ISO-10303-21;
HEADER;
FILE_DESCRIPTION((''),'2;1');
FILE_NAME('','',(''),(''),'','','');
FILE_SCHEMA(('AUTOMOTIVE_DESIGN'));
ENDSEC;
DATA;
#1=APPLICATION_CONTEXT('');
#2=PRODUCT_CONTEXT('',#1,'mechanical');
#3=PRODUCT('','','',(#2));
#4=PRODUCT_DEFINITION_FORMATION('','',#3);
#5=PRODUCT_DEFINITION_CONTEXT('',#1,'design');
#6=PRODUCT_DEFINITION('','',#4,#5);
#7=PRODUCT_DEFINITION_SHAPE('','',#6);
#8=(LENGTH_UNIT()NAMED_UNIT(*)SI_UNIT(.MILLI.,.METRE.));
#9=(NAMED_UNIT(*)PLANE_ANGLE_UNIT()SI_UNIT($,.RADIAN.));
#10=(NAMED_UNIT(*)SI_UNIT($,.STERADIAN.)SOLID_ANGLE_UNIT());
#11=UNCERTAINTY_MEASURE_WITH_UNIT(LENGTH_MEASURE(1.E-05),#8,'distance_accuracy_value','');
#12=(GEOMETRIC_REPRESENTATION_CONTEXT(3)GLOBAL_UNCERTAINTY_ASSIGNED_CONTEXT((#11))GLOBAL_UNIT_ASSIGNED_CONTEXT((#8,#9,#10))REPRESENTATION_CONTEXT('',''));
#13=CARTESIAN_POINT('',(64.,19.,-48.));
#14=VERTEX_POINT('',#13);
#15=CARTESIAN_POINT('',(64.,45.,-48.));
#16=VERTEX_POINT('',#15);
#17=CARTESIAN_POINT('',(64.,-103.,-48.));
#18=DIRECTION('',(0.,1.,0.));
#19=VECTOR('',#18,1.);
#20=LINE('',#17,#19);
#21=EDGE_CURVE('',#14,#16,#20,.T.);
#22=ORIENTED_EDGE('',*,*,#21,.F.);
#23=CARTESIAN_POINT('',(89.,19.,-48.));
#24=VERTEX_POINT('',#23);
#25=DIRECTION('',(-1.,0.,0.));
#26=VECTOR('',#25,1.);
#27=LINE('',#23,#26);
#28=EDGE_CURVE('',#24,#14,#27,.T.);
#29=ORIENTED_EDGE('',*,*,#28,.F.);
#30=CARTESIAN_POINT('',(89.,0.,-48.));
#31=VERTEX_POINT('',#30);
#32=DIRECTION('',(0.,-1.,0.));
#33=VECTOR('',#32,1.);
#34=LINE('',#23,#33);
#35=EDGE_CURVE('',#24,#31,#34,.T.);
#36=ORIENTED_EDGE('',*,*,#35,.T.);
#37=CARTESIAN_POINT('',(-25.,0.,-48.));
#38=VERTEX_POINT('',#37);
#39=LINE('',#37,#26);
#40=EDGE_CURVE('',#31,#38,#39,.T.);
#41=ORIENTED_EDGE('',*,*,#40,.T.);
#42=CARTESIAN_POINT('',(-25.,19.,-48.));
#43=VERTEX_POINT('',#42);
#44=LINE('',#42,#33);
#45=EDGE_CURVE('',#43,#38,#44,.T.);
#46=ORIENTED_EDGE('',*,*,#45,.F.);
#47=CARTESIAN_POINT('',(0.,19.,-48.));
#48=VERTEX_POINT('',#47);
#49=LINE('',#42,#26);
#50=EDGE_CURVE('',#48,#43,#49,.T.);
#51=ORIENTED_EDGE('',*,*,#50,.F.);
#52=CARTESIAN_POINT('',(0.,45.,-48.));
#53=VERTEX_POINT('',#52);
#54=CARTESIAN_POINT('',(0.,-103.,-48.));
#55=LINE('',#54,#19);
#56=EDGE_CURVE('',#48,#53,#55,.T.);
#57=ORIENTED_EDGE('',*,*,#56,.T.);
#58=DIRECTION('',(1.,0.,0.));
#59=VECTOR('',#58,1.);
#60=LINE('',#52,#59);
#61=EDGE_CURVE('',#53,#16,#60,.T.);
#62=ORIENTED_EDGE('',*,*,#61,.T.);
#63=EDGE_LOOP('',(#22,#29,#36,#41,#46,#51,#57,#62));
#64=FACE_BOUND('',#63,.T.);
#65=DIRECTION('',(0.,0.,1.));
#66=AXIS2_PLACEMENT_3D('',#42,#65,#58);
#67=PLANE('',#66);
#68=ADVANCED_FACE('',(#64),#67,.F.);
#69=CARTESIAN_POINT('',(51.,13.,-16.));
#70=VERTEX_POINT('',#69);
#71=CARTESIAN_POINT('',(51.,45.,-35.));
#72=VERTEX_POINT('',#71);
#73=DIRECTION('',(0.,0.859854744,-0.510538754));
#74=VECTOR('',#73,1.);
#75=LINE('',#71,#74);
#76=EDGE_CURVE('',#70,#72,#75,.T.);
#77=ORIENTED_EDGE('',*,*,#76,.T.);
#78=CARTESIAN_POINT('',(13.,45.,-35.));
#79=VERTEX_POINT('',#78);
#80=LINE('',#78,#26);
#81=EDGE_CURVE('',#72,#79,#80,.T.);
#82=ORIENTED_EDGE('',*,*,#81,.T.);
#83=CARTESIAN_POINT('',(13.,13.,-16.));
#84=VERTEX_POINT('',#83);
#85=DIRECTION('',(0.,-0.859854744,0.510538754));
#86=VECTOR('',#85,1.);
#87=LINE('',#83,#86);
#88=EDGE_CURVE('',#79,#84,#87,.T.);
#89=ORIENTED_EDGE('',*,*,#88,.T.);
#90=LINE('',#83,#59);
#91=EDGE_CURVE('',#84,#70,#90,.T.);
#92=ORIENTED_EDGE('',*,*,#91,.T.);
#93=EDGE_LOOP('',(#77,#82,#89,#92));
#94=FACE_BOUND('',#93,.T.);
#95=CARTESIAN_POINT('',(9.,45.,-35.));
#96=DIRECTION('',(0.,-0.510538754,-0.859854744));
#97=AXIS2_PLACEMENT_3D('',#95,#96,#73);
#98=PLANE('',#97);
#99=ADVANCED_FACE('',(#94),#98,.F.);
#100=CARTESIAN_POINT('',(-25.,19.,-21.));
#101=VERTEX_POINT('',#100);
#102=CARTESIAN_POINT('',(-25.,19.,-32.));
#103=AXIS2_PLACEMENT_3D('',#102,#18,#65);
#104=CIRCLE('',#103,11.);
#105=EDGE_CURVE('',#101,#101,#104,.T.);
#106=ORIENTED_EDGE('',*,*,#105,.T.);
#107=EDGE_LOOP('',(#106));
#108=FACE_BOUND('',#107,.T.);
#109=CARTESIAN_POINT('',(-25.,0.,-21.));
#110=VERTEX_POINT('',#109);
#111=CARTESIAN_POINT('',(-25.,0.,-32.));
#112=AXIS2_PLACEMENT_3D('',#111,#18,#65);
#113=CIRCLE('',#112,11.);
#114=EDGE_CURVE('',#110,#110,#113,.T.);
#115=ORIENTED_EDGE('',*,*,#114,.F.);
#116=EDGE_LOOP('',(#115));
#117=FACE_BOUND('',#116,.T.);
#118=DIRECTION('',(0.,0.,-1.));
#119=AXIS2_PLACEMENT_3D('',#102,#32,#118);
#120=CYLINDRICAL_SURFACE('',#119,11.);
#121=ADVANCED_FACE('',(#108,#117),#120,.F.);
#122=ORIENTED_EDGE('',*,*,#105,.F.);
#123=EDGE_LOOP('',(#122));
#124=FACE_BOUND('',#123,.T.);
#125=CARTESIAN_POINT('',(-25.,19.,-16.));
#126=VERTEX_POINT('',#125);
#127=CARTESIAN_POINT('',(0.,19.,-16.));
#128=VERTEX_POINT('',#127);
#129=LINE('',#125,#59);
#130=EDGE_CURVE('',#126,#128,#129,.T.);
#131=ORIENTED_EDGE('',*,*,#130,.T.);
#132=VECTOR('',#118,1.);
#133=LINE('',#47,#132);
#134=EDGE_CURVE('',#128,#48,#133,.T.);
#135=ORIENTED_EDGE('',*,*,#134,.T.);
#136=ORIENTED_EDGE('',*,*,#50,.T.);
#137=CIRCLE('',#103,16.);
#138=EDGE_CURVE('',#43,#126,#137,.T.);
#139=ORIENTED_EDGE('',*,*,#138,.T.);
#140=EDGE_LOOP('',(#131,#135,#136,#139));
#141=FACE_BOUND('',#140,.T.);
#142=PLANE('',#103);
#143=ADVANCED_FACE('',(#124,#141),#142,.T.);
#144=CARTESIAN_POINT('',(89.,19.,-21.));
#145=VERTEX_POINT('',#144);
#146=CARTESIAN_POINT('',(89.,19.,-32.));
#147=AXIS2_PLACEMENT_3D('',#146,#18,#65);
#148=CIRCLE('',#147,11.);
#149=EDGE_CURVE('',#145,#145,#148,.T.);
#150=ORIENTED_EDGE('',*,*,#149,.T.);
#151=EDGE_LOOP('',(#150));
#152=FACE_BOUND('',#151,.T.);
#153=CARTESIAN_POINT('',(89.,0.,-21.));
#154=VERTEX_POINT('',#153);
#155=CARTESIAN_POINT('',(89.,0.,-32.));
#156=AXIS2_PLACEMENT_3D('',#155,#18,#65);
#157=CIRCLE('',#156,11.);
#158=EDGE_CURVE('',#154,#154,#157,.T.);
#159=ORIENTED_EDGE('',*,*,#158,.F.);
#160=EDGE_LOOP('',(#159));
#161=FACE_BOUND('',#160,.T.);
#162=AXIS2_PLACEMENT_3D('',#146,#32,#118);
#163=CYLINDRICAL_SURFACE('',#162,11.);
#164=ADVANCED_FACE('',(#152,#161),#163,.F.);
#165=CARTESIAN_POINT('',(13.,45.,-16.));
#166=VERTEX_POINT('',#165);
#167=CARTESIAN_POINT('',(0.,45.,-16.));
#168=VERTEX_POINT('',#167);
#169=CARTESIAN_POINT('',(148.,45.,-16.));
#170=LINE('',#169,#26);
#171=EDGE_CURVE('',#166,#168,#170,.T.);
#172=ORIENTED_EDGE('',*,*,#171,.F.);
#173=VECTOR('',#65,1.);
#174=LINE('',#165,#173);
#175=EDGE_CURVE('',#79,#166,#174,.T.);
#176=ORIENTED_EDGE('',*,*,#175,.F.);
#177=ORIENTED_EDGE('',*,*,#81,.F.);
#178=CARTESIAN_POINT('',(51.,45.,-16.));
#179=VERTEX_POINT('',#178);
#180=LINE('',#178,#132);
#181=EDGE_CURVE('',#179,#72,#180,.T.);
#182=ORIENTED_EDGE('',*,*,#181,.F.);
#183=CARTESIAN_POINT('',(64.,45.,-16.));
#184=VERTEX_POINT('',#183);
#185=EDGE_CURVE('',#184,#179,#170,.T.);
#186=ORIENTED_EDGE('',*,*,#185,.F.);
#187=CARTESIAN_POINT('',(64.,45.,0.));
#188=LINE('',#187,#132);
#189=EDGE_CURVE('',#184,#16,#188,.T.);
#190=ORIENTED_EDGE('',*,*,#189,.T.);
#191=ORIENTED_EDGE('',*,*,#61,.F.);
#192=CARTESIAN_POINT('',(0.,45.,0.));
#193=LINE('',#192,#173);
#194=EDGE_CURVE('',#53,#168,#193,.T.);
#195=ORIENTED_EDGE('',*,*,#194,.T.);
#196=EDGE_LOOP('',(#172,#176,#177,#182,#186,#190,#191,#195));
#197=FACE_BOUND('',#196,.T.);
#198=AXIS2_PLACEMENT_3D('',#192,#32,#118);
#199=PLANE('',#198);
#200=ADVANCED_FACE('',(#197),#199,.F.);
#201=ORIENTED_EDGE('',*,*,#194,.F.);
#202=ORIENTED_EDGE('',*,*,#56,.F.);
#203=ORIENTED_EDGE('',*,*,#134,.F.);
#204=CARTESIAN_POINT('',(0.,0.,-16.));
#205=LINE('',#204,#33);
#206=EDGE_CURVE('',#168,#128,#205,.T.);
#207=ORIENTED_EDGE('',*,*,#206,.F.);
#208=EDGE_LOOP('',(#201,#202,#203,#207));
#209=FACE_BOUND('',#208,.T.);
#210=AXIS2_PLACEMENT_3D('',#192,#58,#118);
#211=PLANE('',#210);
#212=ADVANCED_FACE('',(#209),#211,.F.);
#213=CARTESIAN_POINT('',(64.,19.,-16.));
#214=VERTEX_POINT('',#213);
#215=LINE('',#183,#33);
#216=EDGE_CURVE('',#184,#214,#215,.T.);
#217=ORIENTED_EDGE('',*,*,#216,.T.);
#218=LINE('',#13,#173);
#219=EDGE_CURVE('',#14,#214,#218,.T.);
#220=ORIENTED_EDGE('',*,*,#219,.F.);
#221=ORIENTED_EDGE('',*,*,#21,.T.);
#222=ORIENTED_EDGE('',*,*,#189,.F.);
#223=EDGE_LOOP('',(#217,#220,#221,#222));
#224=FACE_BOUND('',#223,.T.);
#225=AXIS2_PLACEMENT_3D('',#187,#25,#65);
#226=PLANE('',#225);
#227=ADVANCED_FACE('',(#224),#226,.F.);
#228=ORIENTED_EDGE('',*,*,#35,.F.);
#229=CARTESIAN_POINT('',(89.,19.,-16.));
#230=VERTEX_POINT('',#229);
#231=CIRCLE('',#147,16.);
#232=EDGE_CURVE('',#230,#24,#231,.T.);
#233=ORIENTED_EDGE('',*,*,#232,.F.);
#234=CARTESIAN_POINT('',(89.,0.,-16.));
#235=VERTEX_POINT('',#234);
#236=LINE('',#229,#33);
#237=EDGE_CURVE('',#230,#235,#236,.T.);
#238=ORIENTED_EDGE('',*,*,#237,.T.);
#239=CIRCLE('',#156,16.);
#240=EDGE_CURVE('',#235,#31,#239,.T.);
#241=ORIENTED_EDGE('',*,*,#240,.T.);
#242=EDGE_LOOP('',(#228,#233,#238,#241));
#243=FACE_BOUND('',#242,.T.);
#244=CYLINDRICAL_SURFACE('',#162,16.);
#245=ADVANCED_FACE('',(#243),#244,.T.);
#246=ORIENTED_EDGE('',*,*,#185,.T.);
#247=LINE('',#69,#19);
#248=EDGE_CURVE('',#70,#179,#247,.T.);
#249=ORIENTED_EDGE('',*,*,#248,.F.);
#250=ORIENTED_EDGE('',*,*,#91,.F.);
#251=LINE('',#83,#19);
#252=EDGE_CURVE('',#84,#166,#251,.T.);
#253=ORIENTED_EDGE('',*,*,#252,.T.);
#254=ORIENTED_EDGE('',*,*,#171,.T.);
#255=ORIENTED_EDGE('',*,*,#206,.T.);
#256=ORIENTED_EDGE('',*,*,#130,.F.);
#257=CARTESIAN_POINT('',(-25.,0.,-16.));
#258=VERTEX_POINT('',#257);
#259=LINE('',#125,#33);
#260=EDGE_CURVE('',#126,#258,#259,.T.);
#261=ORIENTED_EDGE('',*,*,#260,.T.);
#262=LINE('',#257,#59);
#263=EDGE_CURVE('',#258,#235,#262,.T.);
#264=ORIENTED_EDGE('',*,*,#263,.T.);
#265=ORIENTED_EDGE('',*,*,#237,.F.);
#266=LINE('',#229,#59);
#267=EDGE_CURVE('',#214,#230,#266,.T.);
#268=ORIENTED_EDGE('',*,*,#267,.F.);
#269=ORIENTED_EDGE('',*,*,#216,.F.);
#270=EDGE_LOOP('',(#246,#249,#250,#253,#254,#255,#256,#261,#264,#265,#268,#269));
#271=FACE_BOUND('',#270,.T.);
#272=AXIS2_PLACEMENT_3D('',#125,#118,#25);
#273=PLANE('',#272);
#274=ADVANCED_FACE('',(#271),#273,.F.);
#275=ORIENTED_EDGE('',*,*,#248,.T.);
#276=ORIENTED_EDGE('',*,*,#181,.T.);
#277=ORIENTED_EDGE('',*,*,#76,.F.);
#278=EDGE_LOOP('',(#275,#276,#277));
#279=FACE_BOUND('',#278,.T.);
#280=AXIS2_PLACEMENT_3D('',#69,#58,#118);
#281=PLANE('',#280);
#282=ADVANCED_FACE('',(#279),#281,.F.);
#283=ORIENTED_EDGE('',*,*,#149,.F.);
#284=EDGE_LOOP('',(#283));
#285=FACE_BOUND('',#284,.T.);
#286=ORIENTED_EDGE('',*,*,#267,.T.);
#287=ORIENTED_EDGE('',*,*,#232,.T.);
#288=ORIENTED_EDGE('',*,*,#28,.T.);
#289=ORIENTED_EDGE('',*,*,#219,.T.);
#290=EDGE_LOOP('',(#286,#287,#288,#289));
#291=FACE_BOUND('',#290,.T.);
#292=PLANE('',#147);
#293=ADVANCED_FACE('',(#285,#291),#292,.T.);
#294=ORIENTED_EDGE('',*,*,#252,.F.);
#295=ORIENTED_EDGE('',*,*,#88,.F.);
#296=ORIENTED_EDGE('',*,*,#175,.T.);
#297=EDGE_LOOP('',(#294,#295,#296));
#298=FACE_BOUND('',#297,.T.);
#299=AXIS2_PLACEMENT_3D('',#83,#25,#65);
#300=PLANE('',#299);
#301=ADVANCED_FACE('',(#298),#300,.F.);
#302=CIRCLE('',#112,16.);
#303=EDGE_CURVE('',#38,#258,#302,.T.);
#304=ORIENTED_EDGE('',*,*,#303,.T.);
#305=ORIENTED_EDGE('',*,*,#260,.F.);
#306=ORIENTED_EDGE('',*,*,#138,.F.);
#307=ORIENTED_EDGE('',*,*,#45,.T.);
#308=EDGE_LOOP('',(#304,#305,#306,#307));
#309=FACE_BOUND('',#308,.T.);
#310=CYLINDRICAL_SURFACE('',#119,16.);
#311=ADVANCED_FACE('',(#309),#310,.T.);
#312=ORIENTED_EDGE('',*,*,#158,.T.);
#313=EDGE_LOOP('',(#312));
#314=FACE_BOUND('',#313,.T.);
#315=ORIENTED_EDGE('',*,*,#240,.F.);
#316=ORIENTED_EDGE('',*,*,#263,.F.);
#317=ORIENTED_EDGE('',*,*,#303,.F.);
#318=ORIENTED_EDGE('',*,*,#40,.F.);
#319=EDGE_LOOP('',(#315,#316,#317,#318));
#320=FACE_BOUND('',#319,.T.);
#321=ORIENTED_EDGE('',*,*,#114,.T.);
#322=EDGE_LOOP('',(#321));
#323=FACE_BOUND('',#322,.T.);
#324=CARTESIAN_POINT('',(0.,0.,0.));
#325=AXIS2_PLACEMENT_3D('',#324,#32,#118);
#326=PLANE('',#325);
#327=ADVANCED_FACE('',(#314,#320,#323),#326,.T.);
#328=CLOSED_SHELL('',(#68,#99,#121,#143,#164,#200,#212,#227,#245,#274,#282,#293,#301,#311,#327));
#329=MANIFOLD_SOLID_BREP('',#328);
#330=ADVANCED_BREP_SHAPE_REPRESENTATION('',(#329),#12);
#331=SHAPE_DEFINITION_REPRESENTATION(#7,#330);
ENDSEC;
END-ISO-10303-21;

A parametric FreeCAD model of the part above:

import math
import FreeCAD as App
import Part
import Sketcher
from FreeCAD import Vector
Q = App.Units.Quantity

doc = App.newDocument("Part")
params = doc.addObject("Spreadsheet::Sheet", "Params")
for row, (alias, value) in enumerate([
    ("sketch1_width", "64 mm"),
    ("pad1_length", "45 mm"),
    ("sketch2_diameter", "22 mm"),
    ("sketch2_radius", "16 mm"),
    ("sketch2_width", "25 mm"),
    ("pad2_length", "19 mm"),
    ("sketch3_width", "45 mm"),
    ("sketch3_height", "16 mm"),
    ("pocket1_length", "148 mm"),
    ("sketch4_width", "64 mm"),
    ("sketch4_height", "16 mm"),
    ("pocket2_length", "148 mm"),
    ("sketch5_width", "38 mm"),
    ("sketch5_height", "19 mm"),
    ("pocket3_length", "32 mm"),
    ("sketch6_width", "32 mm"),
    ("sketch6_height", "19 mm"),
    ("pad3_length", "42 mm"),
], start=1):
    params.set(f"A{row}", alias)
    params.set(f"B{row}", "=" + value)
    params.setAlias(f"B{row}", alias)

body = doc.addObject("PartDesign::Body", "Body")

# Sketch on XZ plane
sketch1 = body.newObject("Sketcher::SketchObject", "Sketch")
sketch1.AttachmentSupport = (doc.getObject("XZ_Plane"), [""])
sketch1.MapMode = "FlatFace"
sketch1.addGeometry([
    Part.LineSegment(Vector(0, -64, 0), Vector(0, 0, 0)),
    Part.LineSegment(Vector(0, 0, 0), Vector(64, 0, 0)),
    Part.LineSegment(Vector(64, 0, 0), Vector(64, -64, 0)),
    Part.LineSegment(Vector(64, -64, 0), Vector(0, -64, 0)),
], False)
sketch1.addConstraint([
    Sketcher.Constraint("Coincident", 0, 2, 1, 1),
    Sketcher.Constraint("Coincident", 1, 2, 2, 1),
    Sketcher.Constraint("Coincident", 2, 2, 3, 1),
    Sketcher.Constraint("Coincident", 3, 2, 0, 1),
    Sketcher.Constraint("Vertical", 0),
    Sketcher.Constraint("Horizontal", 1),
    Sketcher.Constraint("Vertical", 2),
    Sketcher.Constraint("Horizontal", 3),
    Sketcher.Constraint("Coincident", 0, 2, -1, 1),
    Sketcher.Constraint("Equal", 3, 0),
    Sketcher.Constraint("DistanceX", 1, 1, 1, 2, Q("64 mm")),
])
sketch1.setExpression("Constraints[10]", "Params.sketch1_width")
pad1 = body.newObject("PartDesign::Pad", "Pad")
pad1.Profile = sketch1
pad1.setExpression("Length", "Params.pad1_length")
pad1.Reversed = True

# Sketch on XZ plane
sketch2 = body.newObject("Sketcher::SketchObject", "Sketch001")
sketch2.AttachmentSupport = (doc.getObject("XZ_Plane"), [""])
sketch2.MapMode = "FlatFace"
sketch2.addGeometry([
    Part.LineSegment(Vector(0, -48, 0), Vector(-25, -48, 0)),  # 0
    Part.ArcOfCircle(Part.Circle(Vector(-25, -32, 0), Vector(0, 0, 1), 16), math.radians(90), math.radians(270)),  # 1
    Part.LineSegment(Vector(-25, -16, 0), Vector(0, -16, 0)),  # 2
    Part.LineSegment(Vector(0, -16, 0), Vector(0, -48, 0)),  # 3
    Part.Circle(Vector(-25, -32, 0), Vector(0, 0, 1), 11),  # 4
    Part.LineSegment(Vector(89, -48, 0), Vector(64, -48, 0)),  # 5
    Part.LineSegment(Vector(64, -48, 0), Vector(64, -16, 0)),  # 6
    Part.LineSegment(Vector(64, -16, 0), Vector(89, -16, 0)),  # 7
    Part.ArcOfCircle(Part.Circle(Vector(89, -32, 0), Vector(0, 0, 1), 16), math.radians(-90), math.radians(90)),  # 8
    Part.Circle(Vector(89, -32, 0), Vector(0, 0, 1), 11),  # 9
], False)
sketch2.addConstraint([
    Sketcher.Constraint("Tangent", 0, 2, 1, 2),
    Sketcher.Constraint("Tangent", 1, 1, 2, 1),
    Sketcher.Constraint("Coincident", 2, 2, 3, 1),
    Sketcher.Constraint("Coincident", 3, 2, 0, 1),
    Sketcher.Constraint("Coincident", 5, 2, 6, 1),
    Sketcher.Constraint("Coincident", 6, 2, 7, 1),
    Sketcher.Constraint("Tangent", 7, 2, 8, 2),
    Sketcher.Constraint("Tangent", 8, 1, 5, 1),
    Sketcher.Constraint("Horizontal", 0),
    Sketcher.Constraint("Horizontal", 2),
    Sketcher.Constraint("Vertical", 3),
    Sketcher.Constraint("Horizontal", 5),
    Sketcher.Constraint("Vertical", 6),
    Sketcher.Constraint("Horizontal", 7),
    Sketcher.Constraint("Coincident", 4, 3, 1, 3),
    Sketcher.Constraint("Coincident", 9, 3, 8, 3),
    Sketcher.Constraint("Equal", 1, 8),
    Sketcher.Constraint("Equal", 4, 9),
    Sketcher.Constraint("PointOnObject", 2, 2, -2),
    Sketcher.Constraint("Horizontal", 4, 3, 8, 3),
    Sketcher.Constraint("Equal", 2, 5),
    Sketcher.Constraint("Diameter", 4, Q("22 mm")),
    Sketcher.Constraint("Radius", 1, Q("16 mm")),
    Sketcher.Constraint("DistanceX", 0, 2, 0, 1, Q("25 mm")),
    Sketcher.Constraint("DistanceY", 1, 3, -1, 1, Q("32 mm")),
    Sketcher.Constraint("DistanceX", -1, 1, 8, 3, Q("89 mm")),
])
sketch2.setExpression("Constraints[21]", "Params.sketch2_diameter")
sketch2.setExpression("Constraints[22]", "Params.sketch2_radius")
sketch2.setExpression("Constraints[23]", "Params.sketch2_width")
pad2 = body.newObject("PartDesign::Pad", "Pad001")
pad2.Profile = sketch2
pad2.setExpression("Length", "Params.pad2_length")
pad2.Reversed = True

# Sketch on YZ plane
sketch3 = body.newObject("Sketcher::SketchObject", "Sketch002")
sketch3.AttachmentSupport = (doc.getObject("YZ_Plane"), [""])
sketch3.MapMode = "FlatFace"
sketch3.addGeometry([
    Part.LineSegment(Vector(45, -16, 0), Vector(0, -16, 0)),
    Part.LineSegment(Vector(0, -16, 0), Vector(0, 0, 0)),
    Part.LineSegment(Vector(0, 0, 0), Vector(45, 0, 0)),
    Part.LineSegment(Vector(45, 0, 0), Vector(45, -16, 0)),
], False)
sketch3.addConstraint([
    Sketcher.Constraint("Coincident", 0, 2, 1, 1),
    Sketcher.Constraint("Coincident", 1, 2, 2, 1),
    Sketcher.Constraint("Coincident", 2, 2, 3, 1),
    Sketcher.Constraint("Coincident", 3, 2, 0, 1),
    Sketcher.Constraint("Horizontal", 0),
    Sketcher.Constraint("Vertical", 1),
    Sketcher.Constraint("Horizontal", 2),
    Sketcher.Constraint("Vertical", 3),
    Sketcher.Constraint("Coincident", 1, 2, -1, 1),
    Sketcher.Constraint("DistanceX", 0, 2, 0, 1, Q("45 mm")),
    Sketcher.Constraint("DistanceY", 1, 1, 1, 2, Q("16 mm")),
])
sketch3.setExpression("Constraints[9]", "Params.sketch3_width")
sketch3.setExpression("Constraints[10]", "Params.sketch3_height")
pocket1 = body.newObject("PartDesign::Pocket", "Pocket")
pocket1.Profile = sketch3
pocket1.setExpression("Length", "Params.pocket1_length")
pocket1.Reversed = True

# Sketch on XZ plane
sketch4 = body.newObject("Sketcher::SketchObject", "Sketch003")
sketch4.AttachmentSupport = (doc.getObject("XZ_Plane"), [""])
sketch4.MapMode = "FlatFace"
sketch4.AttachmentOffset = App.Placement(Vector(0, 0, -45), App.Rotation())
sketch4.addGeometry([
    Part.LineSegment(Vector(0, -64, 0), Vector(0, -48, 0)),
    Part.LineSegment(Vector(0, -48, 0), Vector(64, -48, 0)),
    Part.LineSegment(Vector(64, -48, 0), Vector(64, -64, 0)),
    Part.LineSegment(Vector(64, -64, 0), Vector(0, -64, 0)),
], False)
sketch4.addConstraint([
    Sketcher.Constraint("Coincident", 0, 2, 1, 1),
    Sketcher.Constraint("Coincident", 1, 2, 2, 1),
    Sketcher.Constraint("Coincident", 2, 2, 3, 1),
    Sketcher.Constraint("Coincident", 3, 2, 0, 1),
    Sketcher.Constraint("Vertical", 0),
    Sketcher.Constraint("Horizontal", 1),
    Sketcher.Constraint("Vertical", 2),
    Sketcher.Constraint("Horizontal", 3),
    Sketcher.Constraint("PointOnObject", 0, 2, -2),
    Sketcher.Constraint("DistanceX", 1, 1, 1, 2, Q("64 mm")),
    Sketcher.Constraint("DistanceY", 0, 1, 0, 2, Q("16 mm")),
    Sketcher.Constraint("DistanceY", 0, 2, -1, 1, Q("48 mm")),
])
sketch4.setExpression("Constraints[9]", "Params.sketch4_width")
sketch4.setExpression("Constraints[10]", "Params.sketch4_height")
pocket2 = body.newObject("PartDesign::Pocket", "Pocket001")
pocket2.Profile = sketch4
pocket2.setExpression("Length", "Params.pocket2_length")
pocket2.Reversed = True

# Sketch on XZ plane
sketch5 = body.newObject("Sketcher::SketchObject", "Sketch004")
sketch5.AttachmentSupport = (doc.getObject("XZ_Plane"), [""])
sketch5.MapMode = "FlatFace"
sketch5.AttachmentOffset = App.Placement(Vector(0, 0, -45), App.Rotation())
sketch5.addGeometry([
    Part.LineSegment(Vector(13, -35, 0), Vector(13, -16, 0)),
    Part.LineSegment(Vector(13, -16, 0), Vector(51, -16, 0)),
    Part.LineSegment(Vector(51, -16, 0), Vector(51, -35, 0)),
    Part.LineSegment(Vector(51, -35, 0), Vector(13, -35, 0)),
], False)
sketch5.addConstraint([
    Sketcher.Constraint("Coincident", 0, 2, 1, 1),
    Sketcher.Constraint("Coincident", 1, 2, 2, 1),
    Sketcher.Constraint("Coincident", 2, 2, 3, 1),
    Sketcher.Constraint("Coincident", 3, 2, 0, 1),
    Sketcher.Constraint("Vertical", 0),
    Sketcher.Constraint("Horizontal", 1),
    Sketcher.Constraint("Vertical", 2),
    Sketcher.Constraint("Horizontal", 3),
    Sketcher.Constraint("DistanceX", 1, 1, 1, 2, Q("38 mm")),
    Sketcher.Constraint("DistanceY", 0, 1, 0, 2, Q("19 mm")),
    Sketcher.Constraint("DistanceX", -1, 1, 0, 2, Q("13 mm")),
    Sketcher.Constraint("DistanceY", 0, 2, -1, 1, Q("16 mm")),
])
sketch5.setExpression("Constraints[8]", "Params.sketch5_width")
sketch5.setExpression("Constraints[9]", "Params.sketch5_height")
pocket3 = body.newObject("PartDesign::Pocket", "Pocket002")
pocket3.Profile = sketch5
pocket3.setExpression("Length", "Params.pocket3_length")
pocket3.Reversed = True

# Sketch on YZ plane
sketch6 = body.newObject("Sketcher::SketchObject", "Sketch005")
sketch6.AttachmentSupport = (doc.getObject("YZ_Plane"), [""])
sketch6.MapMode = "FlatFace"
sketch6.AttachmentOffset = App.Placement(Vector(0, 0, 51), App.Rotation())
sketch6.addGeometry([
    Part.LineSegment(Vector(13, -16, 0), Vector(45, -35, 0)),
    Part.LineSegment(Vector(45, -35, 0), Vector(13, -35, 0)),
    Part.LineSegment(Vector(13, -35, 0), Vector(13, -16, 0)),
], False)
sketch6.addConstraint([
    Sketcher.Constraint("Coincident", 0, 2, 1, 1),
    Sketcher.Constraint("Coincident", 1, 2, 2, 1),
    Sketcher.Constraint("Coincident", 2, 2, 0, 1),
    Sketcher.Constraint("Horizontal", 1),
    Sketcher.Constraint("Vertical", 2),
    Sketcher.Constraint("DistanceX", 1, 2, 1, 1, Q("32 mm")),
    Sketcher.Constraint("DistanceY", 2, 1, 2, 2, Q("19 mm")),
    Sketcher.Constraint("DistanceX", -1, 1, 0, 2, Q("45 mm")),
    Sketcher.Constraint("DistanceY", 0, 2, -1, 1, Q("35 mm")),
])
sketch6.setExpression("Constraints[5]", "Params.sketch6_width")
sketch6.setExpression("Constraints[6]", "Params.sketch6_height")
pad3 = body.newObject("PartDesign::Pad", "Pad002")
pad3.Profile = sketch6
pad3.setExpression("Length", "Params.pad3_length")
pad3.Reversed = True

doc.recompute()
